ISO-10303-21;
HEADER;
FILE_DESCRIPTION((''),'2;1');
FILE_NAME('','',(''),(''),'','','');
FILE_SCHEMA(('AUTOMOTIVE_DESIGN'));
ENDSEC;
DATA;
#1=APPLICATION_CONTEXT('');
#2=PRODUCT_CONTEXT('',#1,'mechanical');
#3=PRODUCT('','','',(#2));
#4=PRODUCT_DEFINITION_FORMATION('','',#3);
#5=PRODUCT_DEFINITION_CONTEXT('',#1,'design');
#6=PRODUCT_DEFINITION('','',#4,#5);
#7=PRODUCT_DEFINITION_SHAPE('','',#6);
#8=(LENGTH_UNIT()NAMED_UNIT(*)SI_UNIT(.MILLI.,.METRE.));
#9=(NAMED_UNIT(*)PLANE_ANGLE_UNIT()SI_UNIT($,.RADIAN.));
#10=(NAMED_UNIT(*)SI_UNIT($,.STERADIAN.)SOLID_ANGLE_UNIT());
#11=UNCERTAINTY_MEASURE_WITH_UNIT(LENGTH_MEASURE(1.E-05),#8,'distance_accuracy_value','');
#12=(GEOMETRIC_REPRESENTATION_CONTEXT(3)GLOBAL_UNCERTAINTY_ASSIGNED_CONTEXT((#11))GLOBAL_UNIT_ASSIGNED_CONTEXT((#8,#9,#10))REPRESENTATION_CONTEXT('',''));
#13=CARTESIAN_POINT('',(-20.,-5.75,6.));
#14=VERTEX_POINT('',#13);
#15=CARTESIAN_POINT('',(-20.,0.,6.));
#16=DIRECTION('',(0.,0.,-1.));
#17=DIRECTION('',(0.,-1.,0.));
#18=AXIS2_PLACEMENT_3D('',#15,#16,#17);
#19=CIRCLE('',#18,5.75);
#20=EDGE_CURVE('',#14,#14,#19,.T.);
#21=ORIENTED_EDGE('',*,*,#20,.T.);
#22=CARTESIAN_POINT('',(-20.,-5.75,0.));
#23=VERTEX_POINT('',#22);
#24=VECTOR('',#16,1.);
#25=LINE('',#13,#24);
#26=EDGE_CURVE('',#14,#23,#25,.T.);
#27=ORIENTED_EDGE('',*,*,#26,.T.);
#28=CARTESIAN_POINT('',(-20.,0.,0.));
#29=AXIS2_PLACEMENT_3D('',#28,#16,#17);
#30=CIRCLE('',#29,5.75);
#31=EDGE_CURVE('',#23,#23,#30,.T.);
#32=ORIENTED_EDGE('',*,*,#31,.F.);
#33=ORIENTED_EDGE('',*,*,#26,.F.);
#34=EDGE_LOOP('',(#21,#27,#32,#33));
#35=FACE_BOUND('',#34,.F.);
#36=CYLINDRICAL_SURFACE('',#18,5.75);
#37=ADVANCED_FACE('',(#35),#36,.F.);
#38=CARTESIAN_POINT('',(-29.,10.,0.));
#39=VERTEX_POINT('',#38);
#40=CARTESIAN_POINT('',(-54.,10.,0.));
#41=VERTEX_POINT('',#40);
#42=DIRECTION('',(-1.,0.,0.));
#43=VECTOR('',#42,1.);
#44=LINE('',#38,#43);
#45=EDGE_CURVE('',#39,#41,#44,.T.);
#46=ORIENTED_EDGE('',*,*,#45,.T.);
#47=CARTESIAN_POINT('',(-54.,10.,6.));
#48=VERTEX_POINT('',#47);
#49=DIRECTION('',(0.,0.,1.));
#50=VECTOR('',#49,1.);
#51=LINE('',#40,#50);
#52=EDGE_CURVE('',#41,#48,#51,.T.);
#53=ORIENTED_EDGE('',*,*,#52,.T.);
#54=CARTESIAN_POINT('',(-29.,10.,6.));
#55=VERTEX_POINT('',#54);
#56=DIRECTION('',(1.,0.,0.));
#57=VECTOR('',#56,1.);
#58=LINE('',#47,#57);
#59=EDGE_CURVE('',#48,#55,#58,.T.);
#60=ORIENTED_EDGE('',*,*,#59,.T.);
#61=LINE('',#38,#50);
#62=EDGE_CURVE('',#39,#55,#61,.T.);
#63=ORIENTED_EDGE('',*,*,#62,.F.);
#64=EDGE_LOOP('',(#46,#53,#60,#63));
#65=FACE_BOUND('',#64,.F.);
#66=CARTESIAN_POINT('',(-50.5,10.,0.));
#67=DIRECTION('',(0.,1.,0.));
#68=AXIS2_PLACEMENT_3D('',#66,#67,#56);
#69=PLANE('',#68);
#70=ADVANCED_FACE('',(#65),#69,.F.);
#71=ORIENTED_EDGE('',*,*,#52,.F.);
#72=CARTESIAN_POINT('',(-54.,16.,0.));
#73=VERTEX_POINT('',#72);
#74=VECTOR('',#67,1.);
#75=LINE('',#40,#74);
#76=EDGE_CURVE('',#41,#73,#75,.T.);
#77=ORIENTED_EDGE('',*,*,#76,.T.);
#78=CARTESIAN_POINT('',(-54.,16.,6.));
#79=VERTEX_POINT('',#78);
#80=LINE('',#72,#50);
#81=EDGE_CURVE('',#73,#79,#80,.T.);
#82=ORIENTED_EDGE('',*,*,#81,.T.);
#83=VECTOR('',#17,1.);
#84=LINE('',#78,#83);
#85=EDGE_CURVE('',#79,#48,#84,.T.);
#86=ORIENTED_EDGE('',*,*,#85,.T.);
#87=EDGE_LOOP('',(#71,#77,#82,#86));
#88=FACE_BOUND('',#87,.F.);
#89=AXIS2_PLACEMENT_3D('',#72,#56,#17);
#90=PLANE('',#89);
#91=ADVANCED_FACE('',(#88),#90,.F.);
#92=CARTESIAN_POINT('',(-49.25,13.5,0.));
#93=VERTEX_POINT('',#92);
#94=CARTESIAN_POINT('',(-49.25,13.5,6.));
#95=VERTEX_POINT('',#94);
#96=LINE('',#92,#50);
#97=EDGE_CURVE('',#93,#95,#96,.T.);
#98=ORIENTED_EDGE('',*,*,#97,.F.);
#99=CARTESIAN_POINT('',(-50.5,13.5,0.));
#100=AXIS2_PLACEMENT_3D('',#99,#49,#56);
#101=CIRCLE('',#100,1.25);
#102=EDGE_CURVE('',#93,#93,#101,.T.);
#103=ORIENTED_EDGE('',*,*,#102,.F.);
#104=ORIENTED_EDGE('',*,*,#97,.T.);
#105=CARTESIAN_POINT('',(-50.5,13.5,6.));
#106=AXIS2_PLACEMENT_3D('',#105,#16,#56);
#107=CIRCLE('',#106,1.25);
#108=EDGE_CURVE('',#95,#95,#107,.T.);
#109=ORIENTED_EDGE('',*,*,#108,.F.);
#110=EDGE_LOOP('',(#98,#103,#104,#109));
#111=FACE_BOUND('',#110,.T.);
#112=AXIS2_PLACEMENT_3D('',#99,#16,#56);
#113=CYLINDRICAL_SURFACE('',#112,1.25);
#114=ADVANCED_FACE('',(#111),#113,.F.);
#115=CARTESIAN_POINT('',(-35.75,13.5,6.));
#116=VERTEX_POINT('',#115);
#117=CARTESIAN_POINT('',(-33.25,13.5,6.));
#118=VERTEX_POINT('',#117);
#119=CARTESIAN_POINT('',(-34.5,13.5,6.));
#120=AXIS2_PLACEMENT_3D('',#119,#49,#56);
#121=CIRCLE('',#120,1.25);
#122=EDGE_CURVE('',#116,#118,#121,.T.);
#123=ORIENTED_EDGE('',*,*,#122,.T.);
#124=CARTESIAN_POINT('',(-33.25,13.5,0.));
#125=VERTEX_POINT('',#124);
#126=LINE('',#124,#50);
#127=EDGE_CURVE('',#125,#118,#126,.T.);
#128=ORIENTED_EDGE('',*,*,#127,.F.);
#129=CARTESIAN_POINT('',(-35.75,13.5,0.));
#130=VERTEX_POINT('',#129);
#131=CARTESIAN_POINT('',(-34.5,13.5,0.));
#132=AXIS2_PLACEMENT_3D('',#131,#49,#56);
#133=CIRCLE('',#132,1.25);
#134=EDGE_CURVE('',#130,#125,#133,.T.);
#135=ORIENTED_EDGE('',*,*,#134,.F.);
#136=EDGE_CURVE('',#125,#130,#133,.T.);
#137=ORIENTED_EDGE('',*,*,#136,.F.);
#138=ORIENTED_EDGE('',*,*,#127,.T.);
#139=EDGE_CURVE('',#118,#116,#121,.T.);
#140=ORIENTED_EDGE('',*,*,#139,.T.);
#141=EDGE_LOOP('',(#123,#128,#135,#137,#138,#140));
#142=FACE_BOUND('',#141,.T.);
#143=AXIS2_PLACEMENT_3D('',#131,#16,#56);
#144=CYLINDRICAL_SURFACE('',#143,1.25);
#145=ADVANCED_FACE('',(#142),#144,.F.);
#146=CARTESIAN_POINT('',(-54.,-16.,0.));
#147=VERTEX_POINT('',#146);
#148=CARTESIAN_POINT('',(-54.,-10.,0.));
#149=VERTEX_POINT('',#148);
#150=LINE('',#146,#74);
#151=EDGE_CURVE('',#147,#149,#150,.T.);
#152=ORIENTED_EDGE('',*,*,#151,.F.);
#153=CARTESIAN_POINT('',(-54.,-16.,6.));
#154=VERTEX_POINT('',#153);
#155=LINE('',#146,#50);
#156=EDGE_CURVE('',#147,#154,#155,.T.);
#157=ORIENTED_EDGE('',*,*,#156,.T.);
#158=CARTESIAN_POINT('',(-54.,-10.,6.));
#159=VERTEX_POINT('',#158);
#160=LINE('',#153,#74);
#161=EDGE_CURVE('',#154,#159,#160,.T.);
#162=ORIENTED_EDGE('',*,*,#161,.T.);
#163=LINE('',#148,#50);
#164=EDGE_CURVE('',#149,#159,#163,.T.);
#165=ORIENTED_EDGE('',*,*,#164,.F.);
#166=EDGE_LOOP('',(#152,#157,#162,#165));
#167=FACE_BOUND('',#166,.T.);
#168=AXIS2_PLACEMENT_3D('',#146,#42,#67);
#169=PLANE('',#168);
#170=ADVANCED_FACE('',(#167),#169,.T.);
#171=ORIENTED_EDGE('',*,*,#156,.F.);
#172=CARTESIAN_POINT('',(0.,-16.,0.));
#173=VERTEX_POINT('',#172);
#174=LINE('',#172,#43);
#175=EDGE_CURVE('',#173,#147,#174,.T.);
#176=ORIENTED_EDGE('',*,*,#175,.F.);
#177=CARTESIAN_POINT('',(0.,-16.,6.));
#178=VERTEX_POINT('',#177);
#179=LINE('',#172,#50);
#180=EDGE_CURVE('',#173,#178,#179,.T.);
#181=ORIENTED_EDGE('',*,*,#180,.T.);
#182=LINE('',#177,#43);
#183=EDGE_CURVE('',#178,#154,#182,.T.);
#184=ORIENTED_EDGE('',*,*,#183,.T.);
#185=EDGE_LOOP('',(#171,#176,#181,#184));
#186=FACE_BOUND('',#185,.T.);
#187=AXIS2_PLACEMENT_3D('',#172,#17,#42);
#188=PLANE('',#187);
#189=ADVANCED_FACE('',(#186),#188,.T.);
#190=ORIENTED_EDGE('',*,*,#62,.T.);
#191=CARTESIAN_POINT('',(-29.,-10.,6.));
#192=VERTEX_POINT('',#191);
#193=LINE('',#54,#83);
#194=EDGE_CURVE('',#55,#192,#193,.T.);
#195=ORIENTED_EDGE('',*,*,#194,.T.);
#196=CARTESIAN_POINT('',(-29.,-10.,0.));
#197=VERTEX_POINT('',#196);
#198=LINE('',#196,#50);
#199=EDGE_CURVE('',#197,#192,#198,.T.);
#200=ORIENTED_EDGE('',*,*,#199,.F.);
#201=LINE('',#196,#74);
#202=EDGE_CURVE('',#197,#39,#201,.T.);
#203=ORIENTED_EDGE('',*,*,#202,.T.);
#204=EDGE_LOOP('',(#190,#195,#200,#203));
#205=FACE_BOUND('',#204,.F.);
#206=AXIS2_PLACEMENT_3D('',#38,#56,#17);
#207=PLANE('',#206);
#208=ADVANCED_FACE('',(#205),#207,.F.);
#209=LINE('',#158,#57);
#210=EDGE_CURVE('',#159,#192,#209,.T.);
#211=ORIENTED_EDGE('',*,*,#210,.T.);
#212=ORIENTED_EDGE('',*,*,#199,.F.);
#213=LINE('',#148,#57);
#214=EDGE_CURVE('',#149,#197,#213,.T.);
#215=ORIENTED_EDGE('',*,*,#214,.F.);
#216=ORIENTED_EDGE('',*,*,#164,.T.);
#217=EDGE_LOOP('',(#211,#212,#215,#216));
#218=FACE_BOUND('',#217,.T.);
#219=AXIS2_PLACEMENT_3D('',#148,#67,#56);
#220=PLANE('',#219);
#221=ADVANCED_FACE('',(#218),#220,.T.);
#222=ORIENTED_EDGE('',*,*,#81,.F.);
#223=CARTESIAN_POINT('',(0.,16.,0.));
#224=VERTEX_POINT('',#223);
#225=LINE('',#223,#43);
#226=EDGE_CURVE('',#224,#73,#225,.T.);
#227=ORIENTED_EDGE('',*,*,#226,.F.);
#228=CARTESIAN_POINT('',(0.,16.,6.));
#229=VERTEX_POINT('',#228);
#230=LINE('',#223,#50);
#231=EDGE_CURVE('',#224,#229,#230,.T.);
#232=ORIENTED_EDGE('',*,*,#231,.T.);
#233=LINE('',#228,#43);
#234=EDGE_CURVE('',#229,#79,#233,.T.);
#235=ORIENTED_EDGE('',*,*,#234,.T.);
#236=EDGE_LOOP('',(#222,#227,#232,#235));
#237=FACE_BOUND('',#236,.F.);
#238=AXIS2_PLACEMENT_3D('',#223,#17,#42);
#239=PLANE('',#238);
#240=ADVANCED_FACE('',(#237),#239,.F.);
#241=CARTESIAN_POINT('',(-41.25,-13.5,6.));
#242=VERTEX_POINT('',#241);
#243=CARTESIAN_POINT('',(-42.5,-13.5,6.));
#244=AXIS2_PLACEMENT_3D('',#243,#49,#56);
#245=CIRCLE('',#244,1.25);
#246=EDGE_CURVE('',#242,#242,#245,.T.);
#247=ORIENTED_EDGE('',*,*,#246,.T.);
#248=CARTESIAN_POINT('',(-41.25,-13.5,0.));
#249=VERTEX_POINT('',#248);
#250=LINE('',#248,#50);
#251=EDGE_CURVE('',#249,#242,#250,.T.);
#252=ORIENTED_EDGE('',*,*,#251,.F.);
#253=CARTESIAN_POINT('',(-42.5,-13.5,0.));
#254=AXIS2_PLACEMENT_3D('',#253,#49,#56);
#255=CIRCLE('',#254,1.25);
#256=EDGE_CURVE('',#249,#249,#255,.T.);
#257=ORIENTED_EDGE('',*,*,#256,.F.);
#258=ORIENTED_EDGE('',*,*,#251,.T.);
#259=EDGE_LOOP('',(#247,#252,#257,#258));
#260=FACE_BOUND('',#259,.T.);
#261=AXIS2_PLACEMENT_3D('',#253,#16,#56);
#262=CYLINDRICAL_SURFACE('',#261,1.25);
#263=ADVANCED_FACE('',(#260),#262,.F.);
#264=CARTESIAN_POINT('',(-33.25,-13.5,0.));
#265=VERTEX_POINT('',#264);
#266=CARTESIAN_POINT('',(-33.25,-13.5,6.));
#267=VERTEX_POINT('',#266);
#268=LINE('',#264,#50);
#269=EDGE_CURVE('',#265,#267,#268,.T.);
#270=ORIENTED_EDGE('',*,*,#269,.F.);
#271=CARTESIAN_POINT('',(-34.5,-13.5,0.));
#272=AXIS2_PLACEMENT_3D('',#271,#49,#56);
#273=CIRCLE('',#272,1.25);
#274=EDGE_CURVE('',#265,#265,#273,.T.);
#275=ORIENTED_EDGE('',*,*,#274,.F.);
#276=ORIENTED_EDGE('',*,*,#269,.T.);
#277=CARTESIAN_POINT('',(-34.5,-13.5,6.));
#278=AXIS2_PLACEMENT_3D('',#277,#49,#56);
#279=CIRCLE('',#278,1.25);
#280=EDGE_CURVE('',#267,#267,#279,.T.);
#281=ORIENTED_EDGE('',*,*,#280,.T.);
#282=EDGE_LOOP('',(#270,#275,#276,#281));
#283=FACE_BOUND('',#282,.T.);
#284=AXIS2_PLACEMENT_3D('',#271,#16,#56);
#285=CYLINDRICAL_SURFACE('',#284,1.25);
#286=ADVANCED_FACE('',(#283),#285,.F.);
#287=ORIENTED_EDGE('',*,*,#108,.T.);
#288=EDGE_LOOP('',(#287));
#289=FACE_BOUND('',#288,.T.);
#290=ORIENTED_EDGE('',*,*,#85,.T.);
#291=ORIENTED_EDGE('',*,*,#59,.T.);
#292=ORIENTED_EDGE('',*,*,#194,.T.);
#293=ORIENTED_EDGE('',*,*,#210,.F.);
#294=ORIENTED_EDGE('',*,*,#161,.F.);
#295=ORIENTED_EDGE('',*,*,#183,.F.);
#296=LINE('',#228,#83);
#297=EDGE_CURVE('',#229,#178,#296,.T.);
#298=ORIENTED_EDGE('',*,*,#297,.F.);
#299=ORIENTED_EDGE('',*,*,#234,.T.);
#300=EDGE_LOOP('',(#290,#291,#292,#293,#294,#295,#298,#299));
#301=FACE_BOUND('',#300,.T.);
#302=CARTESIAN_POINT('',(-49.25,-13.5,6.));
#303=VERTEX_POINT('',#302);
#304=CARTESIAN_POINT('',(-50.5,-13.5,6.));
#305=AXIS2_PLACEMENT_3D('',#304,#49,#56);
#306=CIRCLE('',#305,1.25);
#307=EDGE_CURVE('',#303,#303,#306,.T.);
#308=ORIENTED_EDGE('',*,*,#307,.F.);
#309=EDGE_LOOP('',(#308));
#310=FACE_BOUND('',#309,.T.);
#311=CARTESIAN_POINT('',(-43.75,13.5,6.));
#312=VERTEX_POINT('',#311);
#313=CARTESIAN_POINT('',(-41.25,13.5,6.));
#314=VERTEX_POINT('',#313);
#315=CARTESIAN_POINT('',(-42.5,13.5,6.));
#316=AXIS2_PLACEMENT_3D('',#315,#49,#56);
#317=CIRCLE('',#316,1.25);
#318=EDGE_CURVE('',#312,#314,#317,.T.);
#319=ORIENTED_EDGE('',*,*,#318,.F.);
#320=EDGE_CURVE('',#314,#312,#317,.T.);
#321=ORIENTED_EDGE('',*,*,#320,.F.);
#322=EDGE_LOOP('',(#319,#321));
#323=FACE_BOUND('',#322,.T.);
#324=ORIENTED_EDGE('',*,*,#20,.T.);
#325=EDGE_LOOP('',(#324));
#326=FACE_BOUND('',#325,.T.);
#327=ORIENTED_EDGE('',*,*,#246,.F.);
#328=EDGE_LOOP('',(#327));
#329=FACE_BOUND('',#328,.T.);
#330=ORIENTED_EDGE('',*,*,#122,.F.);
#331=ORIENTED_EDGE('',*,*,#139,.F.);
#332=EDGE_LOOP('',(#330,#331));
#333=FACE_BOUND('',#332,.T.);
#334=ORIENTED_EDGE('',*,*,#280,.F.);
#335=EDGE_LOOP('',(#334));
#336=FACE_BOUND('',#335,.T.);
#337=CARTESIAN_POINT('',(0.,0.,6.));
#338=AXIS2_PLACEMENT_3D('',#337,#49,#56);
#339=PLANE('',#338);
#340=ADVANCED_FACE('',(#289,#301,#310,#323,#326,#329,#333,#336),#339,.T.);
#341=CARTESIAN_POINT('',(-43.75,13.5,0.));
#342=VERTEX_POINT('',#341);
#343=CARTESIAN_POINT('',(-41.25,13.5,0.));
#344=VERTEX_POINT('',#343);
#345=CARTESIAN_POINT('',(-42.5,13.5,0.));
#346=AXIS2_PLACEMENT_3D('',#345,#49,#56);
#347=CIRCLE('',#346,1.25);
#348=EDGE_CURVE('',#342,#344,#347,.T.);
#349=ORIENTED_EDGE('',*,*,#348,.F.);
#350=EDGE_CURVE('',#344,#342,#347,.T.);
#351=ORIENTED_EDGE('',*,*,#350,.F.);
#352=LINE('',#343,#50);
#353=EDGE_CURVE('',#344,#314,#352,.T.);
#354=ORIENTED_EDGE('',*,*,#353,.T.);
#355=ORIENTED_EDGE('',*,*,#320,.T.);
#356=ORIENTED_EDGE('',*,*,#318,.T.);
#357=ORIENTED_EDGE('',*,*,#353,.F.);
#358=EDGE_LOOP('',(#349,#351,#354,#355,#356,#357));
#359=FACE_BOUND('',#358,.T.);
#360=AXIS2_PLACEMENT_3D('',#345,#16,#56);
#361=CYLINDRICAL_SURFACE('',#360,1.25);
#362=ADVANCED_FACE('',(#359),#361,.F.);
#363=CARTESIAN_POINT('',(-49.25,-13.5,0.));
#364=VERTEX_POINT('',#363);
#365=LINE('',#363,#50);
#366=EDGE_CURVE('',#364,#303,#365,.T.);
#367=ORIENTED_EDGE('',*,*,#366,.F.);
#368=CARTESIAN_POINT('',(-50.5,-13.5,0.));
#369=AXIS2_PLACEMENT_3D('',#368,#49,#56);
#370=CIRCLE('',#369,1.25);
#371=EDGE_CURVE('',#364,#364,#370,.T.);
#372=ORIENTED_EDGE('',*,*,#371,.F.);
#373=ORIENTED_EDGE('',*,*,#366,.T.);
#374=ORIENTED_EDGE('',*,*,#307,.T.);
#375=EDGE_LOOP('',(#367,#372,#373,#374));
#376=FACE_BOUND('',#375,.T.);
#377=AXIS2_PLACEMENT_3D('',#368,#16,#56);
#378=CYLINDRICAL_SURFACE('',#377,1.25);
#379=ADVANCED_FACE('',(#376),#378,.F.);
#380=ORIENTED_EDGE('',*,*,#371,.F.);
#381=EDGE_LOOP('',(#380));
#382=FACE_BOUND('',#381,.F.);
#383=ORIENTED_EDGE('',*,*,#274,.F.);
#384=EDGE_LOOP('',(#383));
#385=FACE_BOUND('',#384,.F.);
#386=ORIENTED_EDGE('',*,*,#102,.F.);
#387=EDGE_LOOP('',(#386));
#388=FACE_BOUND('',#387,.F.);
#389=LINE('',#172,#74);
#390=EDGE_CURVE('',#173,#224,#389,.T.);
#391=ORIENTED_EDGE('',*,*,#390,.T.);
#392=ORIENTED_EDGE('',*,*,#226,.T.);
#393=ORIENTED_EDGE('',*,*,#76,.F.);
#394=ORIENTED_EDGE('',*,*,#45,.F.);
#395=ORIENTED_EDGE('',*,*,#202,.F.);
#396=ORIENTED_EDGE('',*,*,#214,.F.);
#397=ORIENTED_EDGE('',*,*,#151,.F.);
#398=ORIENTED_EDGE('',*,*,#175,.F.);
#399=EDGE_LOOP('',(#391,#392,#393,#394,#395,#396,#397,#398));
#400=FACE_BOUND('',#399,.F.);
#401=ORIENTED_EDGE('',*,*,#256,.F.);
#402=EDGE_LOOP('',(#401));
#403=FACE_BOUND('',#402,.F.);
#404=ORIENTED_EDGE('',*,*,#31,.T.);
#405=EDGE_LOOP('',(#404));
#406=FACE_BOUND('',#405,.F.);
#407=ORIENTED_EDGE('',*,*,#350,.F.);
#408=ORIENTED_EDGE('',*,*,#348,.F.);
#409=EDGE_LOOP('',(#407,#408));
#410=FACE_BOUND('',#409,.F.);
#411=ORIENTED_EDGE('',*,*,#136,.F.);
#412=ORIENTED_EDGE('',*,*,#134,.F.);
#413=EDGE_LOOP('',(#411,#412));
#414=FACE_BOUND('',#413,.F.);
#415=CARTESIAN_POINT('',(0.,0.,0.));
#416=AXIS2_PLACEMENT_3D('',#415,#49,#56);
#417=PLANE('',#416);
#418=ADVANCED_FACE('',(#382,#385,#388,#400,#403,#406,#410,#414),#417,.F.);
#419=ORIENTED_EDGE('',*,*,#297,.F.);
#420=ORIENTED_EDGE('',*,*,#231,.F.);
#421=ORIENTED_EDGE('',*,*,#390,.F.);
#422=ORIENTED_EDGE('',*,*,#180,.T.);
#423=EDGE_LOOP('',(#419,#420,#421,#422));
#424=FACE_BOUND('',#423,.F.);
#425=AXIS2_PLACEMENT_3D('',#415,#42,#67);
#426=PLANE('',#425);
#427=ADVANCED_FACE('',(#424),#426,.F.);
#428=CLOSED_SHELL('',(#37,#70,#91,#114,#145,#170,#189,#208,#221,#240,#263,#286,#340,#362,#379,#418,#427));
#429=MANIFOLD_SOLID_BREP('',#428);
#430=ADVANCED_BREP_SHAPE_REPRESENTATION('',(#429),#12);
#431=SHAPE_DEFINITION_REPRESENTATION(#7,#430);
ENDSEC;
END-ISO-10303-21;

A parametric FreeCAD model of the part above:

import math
import FreeCAD as App
import Part
import Sketcher
from FreeCAD import Vector
Q = App.Units.Quantity


def add_polygon(sketch, points):
    """Adds a closed chain of lines whose ends are joined by coincident constraints."""
    first, n = sketch.GeometryCount, len(points)
    for a, b in zip(points, points[1:] + points[:1]):
        sketch.addGeometry(Part.LineSegment(App.Vector(*a, 0), App.Vector(*b, 0)), False)
    for i in range(n):
        sketch.addConstraint(Sketcher.Constraint("Coincident", first + i, 2, first + (i + 1) % n, 1))

doc = App.newDocument("Part")
body = doc.addObject("PartDesign::Body", "Body")

# Sketch on XY plane
sketch1 = doc.addObject("Sketcher::SketchObject", "Sketch")
body.addObject(sketch1)
sketch1.AttachmentSupport = (doc.XY_Plane, [""])
sketch1.MapMode = "FlatFace"
add_polygon(sketch1, [(-29, 10), (-29, -10), (-54, -10), (-54, -16), (0, -16), (0, 16), (-54, 16), (-54, 10)])  # lines 0-7
sketch1.addGeometry(Part.Circle(Vector(-50.5, 13.5, 0), Vector(0, 0, 1), 1.2), False)  # 8
sketch1.addGeometry(Part.ArcOfCircle(Part.Circle(Vector(-42.5, 13.5, 0), Vector(0, 0, 1), 1.2), math.radians(180), math.radians(360)), False)  # 9
sketch1.addGeometry(Part.ArcOfCircle(Part.Circle(Vector(-42.5, 13.5, 0), Vector(0, 0, 1), 1.2), math.radians(0), math.radians(180)), False)  # 10
sketch1.addGeometry(Part.Circle(Vector(-34.5, 13.5, 0), Vector(0, 0, 1), 1.2), False)  # 11
sketch1.addGeometry(Part.Circle(Vector(-34.5, -13.5, 0), Vector(0, 0, 1), 1.2), False)  # 12
sketch1.addGeometry(Part.Circle(Vector(-50.5, -13.5, 0), Vector(0, 0, 1), 1.2), False)  # 13
sketch1.addGeometry(Part.Circle(Vector(-42.5, -13.5, 0), Vector(0, 0, 1), 1.2), False)  # 14
sketch1.addConstraint(Sketcher.Constraint("Tangent", 9, 1, 10, 2))
sketch1.addConstraint(Sketcher.Constraint("Coincident", 10, 1, 9, 2))
sketch1.addConstraint(Sketcher.Constraint("Vertical", 0))
sketch1.addConstraint(Sketcher.Constraint("Horizontal", 1))
sketch1.addConstraint(Sketcher.Constraint("Vertical", 2))
sketch1.addConstraint(Sketcher.Constraint("Horizontal", 3))
sketch1.addConstraint(Sketcher.Constraint("Vertical", 4))
sketch1.addConstraint(Sketcher.Constraint("Horizontal", 5))
sketch1.addConstraint(Sketcher.Constraint("Vertical", 6))
sketch1.addConstraint(Sketcher.Constraint("Horizontal", 7))
sketch1.addConstraint(Sketcher.Constraint("Equal", 8, 9))
sketch1.addConstraint(Sketcher.Constraint("Equal", 10, 11))
sketch1.addConstraint(Sketcher.Constraint("Equal", 11, 12))
sketch1.addConstraint(Sketcher.Constraint("Equal", 12, 13))
sketch1.addConstraint(Sketcher.Constraint("Equal", 13, 14))
sketch1.addConstraint(Sketcher.Constraint("Symmetric", 3, 2, 4, 2, -1, 1))
sketch1.addConstraint(Sketcher.Constraint("Symmetric", 11, 3, 12, 3, -1))
sketch1.addConstraint(Sketcher.Constraint("Symmetric", 8, 3, 13, 3, -1))
sketch1.addConstraint(Sketcher.Constraint("Symmetric", 9, 3, 14, 3, -1))
sketch1.addConstraint(Sketcher.Constraint("Symmetric", 1, 2, 6, 2, -1))
sketch1.addConstraint(Sketcher.Constraint("Horizontal", 8, 3, 9, 3))
sketch1.addConstraint(Sketcher.Constraint("Horizontal", 10, 3, 11, 3))
sketch1.addConstraint(Sketcher.Constraint("Horizontal", 11, 3, 9, 1))
sketch1.addConstraint(Sketcher.Constraint("Horizontal", 9, 1, 10, 1))
sketch1.addConstraint(Sketcher.Constraint("Diameter", 8, Q("2.5 mm")))
sketch1.addConstraint(Sketcher.Constraint("DistanceX", 1, 2, 1, 1, Q("25 mm")))
sketch1.addConstraint(Sketcher.Constraint("DistanceX", 3, 1, 3, 2, Q("54 mm")))
sketch1.addConstraint(Sketcher.Constraint("DistanceY", 2, 2, 2, 1, Q("6 mm")))
sketch1.addConstraint(Sketcher.Constraint("DistanceY", 0, 2, -1, 1, Q("10 mm")))
sketch1.addConstraint(Sketcher.Constraint("DistanceX", 8, 3, 9, 3, Q("8 mm")))
sketch1.addConstraint(Sketcher.Constraint("DistanceX", 9, 3, 11, 3, Q("8 mm")))
sketch1.addConstraint(Sketcher.Constraint("DistanceY", 12, 3, 0, 2, Q("3.5 mm")))
sketch1.addConstraint(Sketcher.Constraint("DistanceX", 1, 2, 13, 3, Q("3.5 mm")))
pad1 = doc.addObject("PartDesign::Pad", "Pad")
body.addObject(pad1)
pad1.Profile = sketch1
pad1.Length = 6

# Sketch on XY plane
sketch2 = doc.addObject("Sketcher::SketchObject", "Sketch001")
body.addObject(sketch2)
sketch2.AttachmentSupport = (doc.XY_Plane, [""])
sketch2.MapMode = "FlatFace"
sketch2.AttachmentOffset = App.Placement(Vector(0, 0, 6), App.Rotation())
sketch2.addGeometry(Part.Circle(Vector(-20, 0, 0), Vector(0, 0, 1), 6), False)
sketch2.addConstraint(Sketcher.Constraint("PointOnObject", 0, 3, -1))
sketch2.addConstraint(Sketcher.Constraint("Diameter", 0, Q("11.5 mm")))
sketch2.addConstraint(Sketcher.Constraint("DistanceX", 0, 3, -1, 1, Q("20 mm")))
doc.recompute()
hole = doc.addObject("PartDesign::Hole", "Hole")
body.addObject(hole)
hole.Profile = sketch2
hole.ThreadType = "None"
hole.Diameter = 11.5
hole.DepthType = "ThroughAll"

doc.recompute()
